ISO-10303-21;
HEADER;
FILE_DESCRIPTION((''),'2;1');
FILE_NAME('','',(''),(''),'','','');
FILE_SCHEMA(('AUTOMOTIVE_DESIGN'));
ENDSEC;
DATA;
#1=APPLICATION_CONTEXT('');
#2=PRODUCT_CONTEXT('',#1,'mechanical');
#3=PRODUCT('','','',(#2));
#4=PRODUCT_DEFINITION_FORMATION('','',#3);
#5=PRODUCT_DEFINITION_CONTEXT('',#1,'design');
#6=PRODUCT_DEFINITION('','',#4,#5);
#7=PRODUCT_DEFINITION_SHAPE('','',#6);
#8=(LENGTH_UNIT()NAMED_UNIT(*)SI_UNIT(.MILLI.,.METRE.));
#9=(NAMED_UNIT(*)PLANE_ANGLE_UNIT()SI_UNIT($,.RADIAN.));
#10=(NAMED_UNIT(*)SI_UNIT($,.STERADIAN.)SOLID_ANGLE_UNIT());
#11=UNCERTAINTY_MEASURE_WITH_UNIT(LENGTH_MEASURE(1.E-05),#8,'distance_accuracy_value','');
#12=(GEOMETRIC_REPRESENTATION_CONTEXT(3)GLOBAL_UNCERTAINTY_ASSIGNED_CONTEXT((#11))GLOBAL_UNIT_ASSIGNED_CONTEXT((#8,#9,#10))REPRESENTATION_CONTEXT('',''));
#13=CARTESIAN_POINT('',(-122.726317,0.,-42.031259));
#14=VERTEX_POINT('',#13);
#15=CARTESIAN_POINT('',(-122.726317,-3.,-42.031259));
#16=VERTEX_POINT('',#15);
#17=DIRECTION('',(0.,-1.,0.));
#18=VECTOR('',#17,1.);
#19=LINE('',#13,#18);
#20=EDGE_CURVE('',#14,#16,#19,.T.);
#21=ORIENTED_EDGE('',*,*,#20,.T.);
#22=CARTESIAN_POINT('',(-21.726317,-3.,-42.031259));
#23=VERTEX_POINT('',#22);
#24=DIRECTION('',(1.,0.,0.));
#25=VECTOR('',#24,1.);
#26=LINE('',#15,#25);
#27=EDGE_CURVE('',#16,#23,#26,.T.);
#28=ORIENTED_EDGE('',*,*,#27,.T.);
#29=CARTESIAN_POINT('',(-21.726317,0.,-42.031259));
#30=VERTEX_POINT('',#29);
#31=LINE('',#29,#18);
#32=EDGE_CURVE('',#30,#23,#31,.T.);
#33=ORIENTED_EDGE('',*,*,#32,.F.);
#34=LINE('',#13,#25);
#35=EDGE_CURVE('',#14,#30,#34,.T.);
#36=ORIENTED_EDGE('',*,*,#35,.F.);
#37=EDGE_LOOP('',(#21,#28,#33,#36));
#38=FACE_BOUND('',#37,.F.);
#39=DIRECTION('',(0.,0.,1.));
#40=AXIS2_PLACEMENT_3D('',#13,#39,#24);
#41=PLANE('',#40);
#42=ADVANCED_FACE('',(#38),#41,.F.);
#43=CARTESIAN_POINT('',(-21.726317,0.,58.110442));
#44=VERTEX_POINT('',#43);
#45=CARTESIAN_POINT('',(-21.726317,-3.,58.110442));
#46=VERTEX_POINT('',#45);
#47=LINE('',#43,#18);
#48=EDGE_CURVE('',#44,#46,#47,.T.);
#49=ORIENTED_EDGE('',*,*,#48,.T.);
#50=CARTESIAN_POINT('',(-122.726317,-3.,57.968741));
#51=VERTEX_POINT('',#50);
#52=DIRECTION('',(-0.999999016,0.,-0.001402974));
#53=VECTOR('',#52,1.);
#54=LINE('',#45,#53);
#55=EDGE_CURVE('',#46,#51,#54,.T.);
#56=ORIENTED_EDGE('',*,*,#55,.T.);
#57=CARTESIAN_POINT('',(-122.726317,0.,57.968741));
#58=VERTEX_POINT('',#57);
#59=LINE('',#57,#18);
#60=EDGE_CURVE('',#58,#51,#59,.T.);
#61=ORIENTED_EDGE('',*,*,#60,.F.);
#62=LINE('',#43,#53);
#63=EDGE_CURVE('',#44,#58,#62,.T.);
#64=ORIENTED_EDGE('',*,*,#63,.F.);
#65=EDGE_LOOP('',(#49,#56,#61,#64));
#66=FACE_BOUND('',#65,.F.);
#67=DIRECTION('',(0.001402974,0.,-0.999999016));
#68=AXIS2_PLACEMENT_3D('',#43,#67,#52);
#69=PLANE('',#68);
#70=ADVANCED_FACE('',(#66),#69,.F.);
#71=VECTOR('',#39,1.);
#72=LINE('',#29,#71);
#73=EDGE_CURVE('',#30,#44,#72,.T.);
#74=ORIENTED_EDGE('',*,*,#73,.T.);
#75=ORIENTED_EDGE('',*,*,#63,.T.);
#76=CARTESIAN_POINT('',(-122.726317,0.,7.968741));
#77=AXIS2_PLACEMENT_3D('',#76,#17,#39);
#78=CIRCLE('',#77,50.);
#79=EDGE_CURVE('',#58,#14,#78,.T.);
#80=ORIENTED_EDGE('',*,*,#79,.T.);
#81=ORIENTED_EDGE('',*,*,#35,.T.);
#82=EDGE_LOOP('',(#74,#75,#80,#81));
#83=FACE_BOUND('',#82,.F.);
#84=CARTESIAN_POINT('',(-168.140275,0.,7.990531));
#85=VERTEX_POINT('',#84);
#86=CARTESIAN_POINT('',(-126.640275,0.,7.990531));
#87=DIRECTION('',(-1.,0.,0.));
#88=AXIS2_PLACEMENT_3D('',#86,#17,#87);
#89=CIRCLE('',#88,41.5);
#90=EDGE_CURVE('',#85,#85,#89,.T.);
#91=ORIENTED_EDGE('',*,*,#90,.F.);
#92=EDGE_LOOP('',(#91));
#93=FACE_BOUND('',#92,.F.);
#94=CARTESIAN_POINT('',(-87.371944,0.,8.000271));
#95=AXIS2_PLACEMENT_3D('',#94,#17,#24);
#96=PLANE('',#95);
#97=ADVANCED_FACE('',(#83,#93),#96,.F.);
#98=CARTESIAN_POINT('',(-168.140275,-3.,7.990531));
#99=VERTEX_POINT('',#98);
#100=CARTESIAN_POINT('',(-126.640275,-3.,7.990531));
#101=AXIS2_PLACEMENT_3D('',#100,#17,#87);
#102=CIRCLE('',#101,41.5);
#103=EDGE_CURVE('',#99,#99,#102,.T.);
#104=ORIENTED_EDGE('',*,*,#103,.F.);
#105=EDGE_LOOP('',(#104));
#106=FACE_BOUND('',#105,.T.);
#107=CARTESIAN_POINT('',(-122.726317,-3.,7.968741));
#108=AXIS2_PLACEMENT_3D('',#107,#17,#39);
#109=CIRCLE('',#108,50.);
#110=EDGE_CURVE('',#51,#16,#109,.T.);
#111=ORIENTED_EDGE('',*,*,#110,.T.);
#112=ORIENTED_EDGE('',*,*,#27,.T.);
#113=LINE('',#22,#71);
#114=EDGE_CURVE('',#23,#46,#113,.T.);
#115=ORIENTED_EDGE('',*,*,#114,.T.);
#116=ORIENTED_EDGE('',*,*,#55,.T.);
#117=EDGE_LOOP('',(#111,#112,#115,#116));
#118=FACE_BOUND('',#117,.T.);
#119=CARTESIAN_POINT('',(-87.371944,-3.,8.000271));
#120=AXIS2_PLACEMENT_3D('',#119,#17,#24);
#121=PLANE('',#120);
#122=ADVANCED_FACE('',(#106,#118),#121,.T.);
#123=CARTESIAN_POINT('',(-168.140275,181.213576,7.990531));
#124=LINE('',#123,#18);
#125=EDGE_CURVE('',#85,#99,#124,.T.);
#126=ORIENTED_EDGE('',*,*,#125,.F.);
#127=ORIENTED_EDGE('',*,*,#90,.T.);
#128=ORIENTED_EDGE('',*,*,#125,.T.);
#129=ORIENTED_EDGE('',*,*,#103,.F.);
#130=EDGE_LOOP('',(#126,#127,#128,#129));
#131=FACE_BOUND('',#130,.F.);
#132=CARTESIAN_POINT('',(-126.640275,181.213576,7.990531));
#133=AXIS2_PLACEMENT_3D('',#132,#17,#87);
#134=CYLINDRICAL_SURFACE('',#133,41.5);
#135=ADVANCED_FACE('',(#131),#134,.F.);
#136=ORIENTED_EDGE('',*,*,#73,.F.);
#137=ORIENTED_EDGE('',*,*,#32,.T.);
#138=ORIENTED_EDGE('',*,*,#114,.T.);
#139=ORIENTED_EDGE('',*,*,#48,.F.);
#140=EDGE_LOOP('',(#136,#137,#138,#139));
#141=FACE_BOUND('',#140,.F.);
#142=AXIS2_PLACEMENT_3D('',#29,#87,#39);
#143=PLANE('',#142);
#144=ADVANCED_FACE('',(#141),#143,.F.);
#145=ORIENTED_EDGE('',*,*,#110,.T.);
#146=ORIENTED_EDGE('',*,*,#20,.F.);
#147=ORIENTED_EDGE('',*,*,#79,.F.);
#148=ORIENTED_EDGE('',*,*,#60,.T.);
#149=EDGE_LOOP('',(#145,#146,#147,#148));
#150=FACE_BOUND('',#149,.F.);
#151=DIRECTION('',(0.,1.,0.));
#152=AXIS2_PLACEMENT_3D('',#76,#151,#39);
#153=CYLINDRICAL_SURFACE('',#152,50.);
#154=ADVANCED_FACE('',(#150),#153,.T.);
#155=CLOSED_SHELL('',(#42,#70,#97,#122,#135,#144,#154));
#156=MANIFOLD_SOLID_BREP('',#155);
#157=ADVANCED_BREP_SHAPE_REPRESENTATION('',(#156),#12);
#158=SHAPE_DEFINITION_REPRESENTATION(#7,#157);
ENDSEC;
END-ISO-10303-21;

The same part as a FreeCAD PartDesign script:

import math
import FreeCAD as App
import Part
import Sketcher
Q = App.Units.Quantity

doc = App.newDocument("Part")
body = doc.addObject("PartDesign::Body", "Body")

# Sketch on XZ plane
sketch1 = body.newObject("Sketcher::SketchObject", "Sketch")
sketch1.AttachmentSupport = (doc.getObject("XZ_Plane"), [""])
sketch1.MapMode = "FlatFace"
sketch1.addGeometry([
    Part.LineSegment(App.Vector(-22, 58, 0), App.Vector(-123, 58, 0)),
    Part.ArcOfCircle(Part.Circle(App.Vector(-123, 8, 0), App.Vector(0, 0, 1), 50), math.radians(90), math.radians(270)),
    Part.LineSegment(App.Vector(-123, -42, 0), App.Vector(-22, -42, 0)),
    Part.LineSegment(App.Vector(-22, -42, 0), App.Vector(-22, 58, 0)),
], False)
sketch1.addConstraint([
    Sketcher.Constraint("Coincident", 0, 2, 1, 1),
    Sketcher.Constraint("Tangent", 1, 2, 2, 1),
    Sketcher.Constraint("Coincident", 2, 2, 3, 1),
    Sketcher.Constraint("Coincident", 3, 2, 0, 1),
    Sketcher.Constraint("Horizontal", 2),
    Sketcher.Constraint("Vertical", 3),
    Sketcher.Constraint("Vertical", 1, 3, 0, 2),
    Sketcher.Constraint("Radius", 1, Q("50 mm")),
    Sketcher.Constraint("DistanceX", 2, 1, 2, 2, Q("101 mm")),
    Sketcher.Constraint("DistanceY", 3, 1, 3, 2, Q("100.141701 mm")),
    Sketcher.Constraint("DistanceY", -1, 1, 1, 3, Q("7.968741 mm")),
    Sketcher.Constraint("DistanceX", 1, 3, -1, 1, Q("122.726317 mm")),
])
pad1 = body.newObject("PartDesign::Pad", "Pad")
pad1.Profile = sketch1
pad1.Length = 3

# Sketch on XZ plane
sketch2 = body.newObject("Sketcher::SketchObject", "Sketch001")
sketch2.AttachmentSupport = (doc.getObject("XZ_Plane"), [""])
sketch2.MapMode = "FlatFace"
sketch2.addGeometry(Part.Circle(App.Vector(-127, 8, 0), App.Vector(0, 0, 1), 42), False)
sketch2.addConstraint([
    Sketcher.Constraint("Diameter", 0, Q("83 mm")),
    Sketcher.Constraint("DistanceY", -1, 1, 0, 3, Q("7.990531 mm")),
    Sketcher.Constraint("DistanceX", 0, 3, -1, 1, Q("126.640275 mm")),
])
doc.recompute()
hole = body.newObject("PartDesign::Hole", "Hole")
hole.Profile = sketch2
hole.ThreadType = "None"
hole.Diameter = 83
hole.DepthType = "ThroughAll"
hole.Reversed = True

doc.recompute()
